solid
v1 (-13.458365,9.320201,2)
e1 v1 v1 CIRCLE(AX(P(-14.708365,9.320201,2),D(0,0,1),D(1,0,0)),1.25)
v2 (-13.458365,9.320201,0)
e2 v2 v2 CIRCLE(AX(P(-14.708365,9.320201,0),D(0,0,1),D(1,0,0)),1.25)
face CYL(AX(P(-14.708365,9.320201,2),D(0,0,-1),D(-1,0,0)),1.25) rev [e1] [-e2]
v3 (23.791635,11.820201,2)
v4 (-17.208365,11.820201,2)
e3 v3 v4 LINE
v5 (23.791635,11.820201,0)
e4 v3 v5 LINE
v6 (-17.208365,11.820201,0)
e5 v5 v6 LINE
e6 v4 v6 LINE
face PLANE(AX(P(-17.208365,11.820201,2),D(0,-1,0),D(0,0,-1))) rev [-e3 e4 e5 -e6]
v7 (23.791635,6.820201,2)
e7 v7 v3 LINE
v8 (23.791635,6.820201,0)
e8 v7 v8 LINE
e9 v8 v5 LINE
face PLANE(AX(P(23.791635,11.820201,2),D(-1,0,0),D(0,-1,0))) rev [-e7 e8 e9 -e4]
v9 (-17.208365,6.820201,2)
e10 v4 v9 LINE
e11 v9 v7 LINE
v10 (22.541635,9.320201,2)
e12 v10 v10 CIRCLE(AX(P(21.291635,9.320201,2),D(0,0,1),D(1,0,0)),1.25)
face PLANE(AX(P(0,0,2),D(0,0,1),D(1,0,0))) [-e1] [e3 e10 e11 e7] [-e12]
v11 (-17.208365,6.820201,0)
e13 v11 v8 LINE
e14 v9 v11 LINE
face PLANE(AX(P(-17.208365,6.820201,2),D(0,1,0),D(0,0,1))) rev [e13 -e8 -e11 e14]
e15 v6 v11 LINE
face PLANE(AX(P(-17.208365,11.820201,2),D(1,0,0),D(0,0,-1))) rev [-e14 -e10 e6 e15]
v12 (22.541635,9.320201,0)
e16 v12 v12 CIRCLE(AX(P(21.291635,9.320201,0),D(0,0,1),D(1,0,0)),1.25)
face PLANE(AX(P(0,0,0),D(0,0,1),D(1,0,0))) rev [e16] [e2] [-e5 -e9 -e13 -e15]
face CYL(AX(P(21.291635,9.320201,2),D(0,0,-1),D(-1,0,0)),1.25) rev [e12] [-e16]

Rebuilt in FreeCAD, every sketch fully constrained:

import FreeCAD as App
import Part
import Sketcher
from FreeCAD import Vector

doc = App.newDocument("Part")
body = doc.addObject("PartDesign::Body", "Body")

sketch1 = body.newObject("Sketcher::SketchObject", "Sketch")
sketch1.AttachmentSupport = (doc.getObject("XY_Plane"), [""])
sketch1.MapMode = "FlatFace"
sketch1.addGeometry([
    Part.LineSegment(Vector(-17.208365, 11.820201, 0), Vector(-17.208365, 6.820201, 0)),
    Part.LineSegment(Vector(-17.208365, 6.820201, 0), Vector(23.791635, 6.820201, 0)),
    Part.LineSegment(Vector(23.791635, 6.820201, 0), Vector(23.791635, 11.820201, 0)),
    Part.LineSegment(Vector(23.791635, 11.820201, 0), Vector(-17.208365, 11.820201, 0)),
    Part.Circle(Vector(-14.708365, 9.320201, 0), Vector(0, 0, 1), 1.25),
    Part.Circle(Vector(21.291635, 9.320201, 0), Vector(0, 0, 1), 1.25),
], False)
sketch1.addConstraint([
    Sketcher.Constraint("Coincident", 0, 2, 1, 1),
    Sketcher.Constraint("Coincident", 1, 2, 2, 1),
    Sketcher.Constraint("Coincident", 2, 2, 3, 1),
    Sketcher.Constraint("Coincident", 3, 2, 0, 1),
    Sketcher.Constraint("Vertical", 0),
    Sketcher.Constraint("Horizontal", 1),
    Sketcher.Constraint("Vertical", 2),
    Sketcher.Constraint("Horizontal", 3),
    Sketcher.Constraint("Equal", 4, 5),
    Sketcher.Constraint("Horizontal", 4, 3, 5, 3),
    Sketcher.Constraint("Diameter", 4, 2.5),
    Sketcher.Constraint("DistanceX", 1, 1, 1, 2, 41.0),
    Sketcher.Constraint("DistanceY", 0, 2, 0, 1, 5.0),
    Sketcher.Constraint("DistanceX", 4, 3, 5, 3, 36.0),
    Sketcher.Constraint("DistanceX", 0, 2, 4, 3, 2.5),
    Sketcher.Constraint("DistanceY", 0, 2, 4, 3, 2.5),
    Sketcher.Constraint("DistanceY", -1, 1, 4, 3, 9.320201),
    Sketcher.Constraint("DistanceX", 4, 3, -1, 1, 14.708365),
])
pad1 = body.newObject("PartDesign::Pad", "Pad")
pad1.Profile = sketch1
pad1.Length = 2

doc.recompute()
